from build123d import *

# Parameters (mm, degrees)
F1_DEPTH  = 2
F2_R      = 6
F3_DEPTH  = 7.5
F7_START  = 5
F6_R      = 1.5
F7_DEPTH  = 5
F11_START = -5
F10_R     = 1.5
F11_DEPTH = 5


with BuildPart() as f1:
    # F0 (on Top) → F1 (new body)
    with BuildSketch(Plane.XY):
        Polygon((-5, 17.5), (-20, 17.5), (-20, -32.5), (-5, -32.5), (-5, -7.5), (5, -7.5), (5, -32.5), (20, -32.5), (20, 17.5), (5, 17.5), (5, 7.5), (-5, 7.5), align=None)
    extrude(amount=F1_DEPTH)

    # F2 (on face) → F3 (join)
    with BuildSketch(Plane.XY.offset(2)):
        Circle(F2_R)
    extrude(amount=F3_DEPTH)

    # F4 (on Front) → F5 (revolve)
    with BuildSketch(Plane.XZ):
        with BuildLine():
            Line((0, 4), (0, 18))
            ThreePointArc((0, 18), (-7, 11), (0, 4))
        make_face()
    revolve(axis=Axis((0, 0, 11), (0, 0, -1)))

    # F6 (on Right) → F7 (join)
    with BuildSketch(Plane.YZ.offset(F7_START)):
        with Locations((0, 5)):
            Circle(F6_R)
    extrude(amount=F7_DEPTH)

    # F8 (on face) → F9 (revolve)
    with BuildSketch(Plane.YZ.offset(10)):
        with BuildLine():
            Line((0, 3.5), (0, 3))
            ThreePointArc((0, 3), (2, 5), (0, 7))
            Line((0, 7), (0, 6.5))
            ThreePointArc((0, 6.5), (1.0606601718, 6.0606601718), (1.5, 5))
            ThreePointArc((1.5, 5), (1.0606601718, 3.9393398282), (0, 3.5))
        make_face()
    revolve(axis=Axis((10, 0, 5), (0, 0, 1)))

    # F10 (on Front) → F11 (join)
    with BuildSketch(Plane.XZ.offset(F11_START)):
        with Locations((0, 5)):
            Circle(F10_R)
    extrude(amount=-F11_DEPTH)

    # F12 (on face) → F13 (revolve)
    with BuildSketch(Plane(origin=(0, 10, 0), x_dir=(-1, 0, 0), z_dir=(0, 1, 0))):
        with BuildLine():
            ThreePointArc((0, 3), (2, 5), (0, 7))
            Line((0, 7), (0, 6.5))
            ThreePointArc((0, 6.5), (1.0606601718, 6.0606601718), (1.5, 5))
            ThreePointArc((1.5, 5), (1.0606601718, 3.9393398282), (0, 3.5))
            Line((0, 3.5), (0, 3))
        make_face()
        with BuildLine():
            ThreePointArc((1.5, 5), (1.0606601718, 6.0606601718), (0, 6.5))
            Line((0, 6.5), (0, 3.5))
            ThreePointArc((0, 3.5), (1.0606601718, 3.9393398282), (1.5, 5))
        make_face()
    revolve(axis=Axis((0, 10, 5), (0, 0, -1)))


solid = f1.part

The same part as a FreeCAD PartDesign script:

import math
import FreeCAD as App
import Part
import Sketcher

doc = App.newDocument("Part")
body = doc.addObject("PartDesign::Body", "Body")

sketch1 = doc.addObject("Sketcher::SketchObject", "Sketch")
body.addObject(sketch1)
sketch1.AttachmentSupport = (doc.XY_Plane, [""])
sketch1.MapMode = "FlatFace"
sketch1.addGeometry(Part.LineSegment(App.Vector(-5, 18, 0), App.Vector(-20, 18, 0)), False)
sketch1.addGeometry(Part.LineSegment(App.Vector(-20, 18, 0), App.Vector(-20, -32, 0)), False)
sketch1.addGeometry(Part.LineSegment(App.Vector(-20, -32, 0), App.Vector(-5, -32, 0)), False)
sketch1.addGeometry(Part.LineSegment(App.Vector(-5, -32, 0), App.Vector(-5, -8, 0)), False)
sketch1.addGeometry(Part.LineSegment(App.Vector(-5, -8, 0), App.Vector(5, -8, 0)), False)
sketch1.addGeometry(Part.LineSegment(App.Vector(5, -8, 0), App.Vector(5, -32, 0)), False)
sketch1.addGeometry(Part.LineSegment(App.Vector(5, -32, 0), App.Vector(20, -32, 0)), False)
sketch1.addGeometry(Part.LineSegment(App.Vector(20, -32, 0), App.Vector(20, 18, 0)), False)
sketch1.addGeometry(Part.LineSegment(App.Vector(20, 18, 0), App.Vector(5, 18, 0)), False)
sketch1.addGeometry(Part.LineSegment(App.Vector(5, 18, 0), App.Vector(5, 8, 0)), False)
sketch1.addGeometry(Part.LineSegment(App.Vector(5, 8, 0), App.Vector(-5, 8, 0)), False)
sketch1.addGeometry(Part.LineSegment(App.Vector(-5, 8, 0), App.Vector(-5, 18, 0)), False)
sketch1.addConstraint(Sketcher.Constraint("Coincident", 0, 2, 1, 1))
sketch1.addConstraint(Sketcher.Constraint("Coincident", 1, 2, 2, 1))
sketch1.addConstraint(Sketcher.Constraint("Coincident", 2, 2, 3, 1))
sketch1.addConstraint(Sketcher.Constraint("Coincident", 3, 2, 4, 1))
sketch1.addConstraint(Sketcher.Constraint("Coincident", 4, 2, 5, 1))
sketch1.addConstraint(Sketcher.Constraint("Coincident", 5, 2, 6, 1))
sketch1.addConstraint(Sketcher.Constraint("Coincident", 6, 2, 7, 1))
sketch1.addConstraint(Sketcher.Constraint("Coincident", 7, 2, 8, 1))
sketch1.addConstraint(Sketcher.Constraint("Coincident", 8, 2, 9, 1))
sketch1.addConstraint(Sketcher.Constraint("Coincident", 9, 2, 10, 1))
sketch1.addConstraint(Sketcher.Constraint("Coincident", 10, 2, 11, 1))
sketch1.addConstraint(Sketcher.Constraint("Coincident", 11, 2, 0, 1))
sketch1.addConstraint(Sketcher.Constraint("Horizontal", 0))
sketch1.addConstraint(Sketcher.Constraint("Vertical", 1))
sketch1.addConstraint(Sketcher.Constraint("Horizontal", 2))
sketch1.addConstraint(Sketcher.Constraint("Vertical", 3))
sketch1.addConstraint(Sketcher.Constraint("Horizontal", 4))
sketch1.addConstraint(Sketcher.Constraint("Vertical", 5))
sketch1.addConstraint(Sketcher.Constraint("Horizontal", 6))
sketch1.addConstraint(Sketcher.Constraint("Vertical", 7))
sketch1.addConstraint(Sketcher.Constraint("Horizontal", 8))
sketch1.addConstraint(Sketcher.Constraint("Vertical", 9))
sketch1.addConstraint(Sketcher.Constraint("Horizontal", 10))
sketch1.addConstraint(Sketcher.Constraint("Vertical", 11))
sketch1.addConstraint(Sketcher.Constraint("Symmetric", 3, 2, 9, 2, -1, 1))
sketch1.addConstraint(Sketcher.Constraint("Symmetric", 2, 2, 5, 2, -2))
sketch1.addConstraint(Sketcher.Constraint("Symmetric", 0, 2, 7, 2, -2))
sketch1.addConstraint(Sketcher.Constraint("Vertical", 3, 2, 10, 2))
sketch1.addConstraint(Sketcher.Constraint("Equal", 10, 9))
sketch1.addConstraint(Sketcher.Constraint("DistanceX", 0, 2, 0, 1, 15.0))
sketch1.addConstraint(Sketcher.Constraint("DistanceX", 4, 1, 4, 2, 10.0))
sketch1.addConstraint(Sketcher.Constraint("DistanceY", 1, 2, 1, 1, 50.0))
sketch1.addConstraint(Sketcher.Constraint("DistanceY", 3, 1, 3, 2, 25.0))
pad1 = doc.addObject("PartDesign::Pad", "Pad")
body.addObject(pad1)
pad1.Profile = sketch1
pad1.Length = 2

sketch2 = doc.addObject("Sketcher::SketchObject", "Sketch001")
body.addObject(sketch2)
sketch2.AttachmentSupport = (doc.XY_Plane, [""])
sketch2.MapMode = "FlatFace"
sketch2.AttachmentOffset = App.Placement(App.Vector(0, 0, 2), App.Rotation())
sketch2.addGeometry(Part.Circle(App.Vector(0, 0, 0), App.Vector(0, 0, 1), 6), False)
sketch2.addConstraint(Sketcher.Constraint("Coincident", 0, 3, -1, 1))
sketch2.addConstraint(Sketcher.Constraint("Diameter", 0, 12.0))
pad2 = doc.addObject("PartDesign::Pad", "Pad001")
body.addObject(pad2)
pad2.Profile = sketch2
pad2.Length = 7.5

sketch3 = doc.addObject("Sketcher::SketchObject", "Sketch002")
body.addObject(sketch3)
sketch3.AttachmentSupport = (doc.XZ_Plane, [""])
sketch3.MapMode = "FlatFace"
sketch3.addGeometry(Part.LineSegment(App.Vector(0, 4, 0), App.Vector(0, 18, 0)), False)
sketch3.addGeometry(Part.ArcOfCircle(Part.Circle(App.Vector(0, 11, 0), App.Vector(0, 0, 1), 7), math.radians(90), math.radians(270)), False)
sketch3.addConstraint(Sketcher.Constraint("Coincident", 0, 1, 1, 2))
sketch3.addConstraint(Sketcher.Constraint("Coincident", 1, 1, 0, 2))
sketch3.addConstraint(Sketcher.Constraint("Vertical", 0))
sketch3.addConstraint(Sketcher.Constraint("PointOnObject", 1, 3, -2))
sketch3.addConstraint(Sketcher.Constraint("PointOnObject", 0, 1, -2))
sketch3.addConstraint(Sketcher.Constraint("Radius", 1, 7.0))
sketch3.addConstraint(Sketcher.Constraint("DistanceY", -1, 1, 1, 3, 11.0))
revolution = doc.addObject("PartDesign::Revolution", "Revolution")
body.addObject(revolution)
revolution.Profile = sketch3
revolution.ReferenceAxis = (sketch3, ["V_Axis"])
revolution.Angle = 360

sketch4 = doc.addObject("Sketcher::SketchObject", "Sketch003")
body.addObject(sketch4)
sketch4.AttachmentSupport = (doc.YZ_Plane, [""])
sketch4.MapMode = "FlatFace"
sketch4.AttachmentOffset = App.Placement(App.Vector(0, 0, 5), App.Rotation())
sketch4.addGeometry(Part.Circle(App.Vector(0, 5, 0), App.Vector(0, 0, 1), 1.5), False)
sketch4.addConstraint(Sketcher.Constraint("PointOnObject", 0, 3, -2))
sketch4.addConstraint(Sketcher.Constraint("Diameter", 0, 3.0))
sketch4.addConstraint(Sketcher.Constraint("DistanceY", -1, 1, 0, 3, 5.0))
pad3 = doc.addObject("PartDesign::Pad", "Pad002")
body.addObject(pad3)
pad3.Profile = sketch4
pad3.Length = 5

sketch5 = doc.addObject("Sketcher::SketchObject", "Sketch004")
body.addObject(sketch5)
sketch5.AttachmentSupport = (doc.YZ_Plane, [""])
sketch5.MapMode = "FlatFace"
sketch5.AttachmentOffset = App.Placement(App.Vector(0, 0, 10), App.Rotation())
sketch5.addGeometry(Part.LineSegment(App.Vector(0, 3.5, 0), App.Vector(0, 3, 0)), False)
sketch5.addGeometry(Part.ArcOfCircle(Part.Circle(App.Vector(0, 5, 0), App.Vector(0, 0, 1), 2), math.radians(-90), math.radians(90)), False)
sketch5.addGeometry(Part.LineSegment(App.Vector(0, 7, 0), App.Vector(0, 6.5, 0)), False)
sketch5.addGeometry(Part.ArcOfCircle(Part.Circle(App.Vector(0, 5, 0), App.Vector(0, 0, 1), 1.5), math.radians(0), math.radians(90)), False)
sketch5.addGeometry(Part.ArcOfCircle(Part.Circle(App.Vector(0, 5, 0), App.Vector(0, 0, 1), 1.5), math.radians(-90), math.radians(0)), False)
sketch5.addConstraint(Sketcher.Constraint("Coincident", 0, 2, 1, 1))
sketch5.addConstraint(Sketcher.Constraint("Coincident", 1, 2, 2, 1))
sketch5.addConstraint(Sketcher.Constraint("Coincident", 2, 2, 3, 2))
sketch5.addConstraint(Sketcher.Constraint("Tangent", 3, 1, 4, 2))
sketch5.addConstraint(Sketcher.Constraint("Coincident", 4, 1, 0, 1))
sketch5.addConstraint(Sketcher.Constraint("Vertical", 0))
sketch5.addConstraint(Sketcher.Constraint("Vertical", 2))
sketch5.addConstraint(Sketcher.Constraint("Coincident", 3, 3, 1, 3))
sketch5.addConstraint(Sketcher.Constraint("Equal", 3, 4))
sketch5.addConstraint(Sketcher.Constraint("PointOnObject", 1, 3, -2))
sketch5.addConstraint(Sketcher.Constraint("PointOnObject", 0, 2, -2))
sketch5.addConstraint(Sketcher.Constraint("PointOnObject", 1, 2, -2))
sketch5.addConstraint(Sketcher.Constraint("Horizontal", 4, 3, 3, 1))
sketch5.addConstraint(Sketcher.Constraint("Radius", 1, 2.0))
sketch5.addConstraint(Sketcher.Constraint("Radius", 3, 1.5))
sketch5.addConstraint(Sketcher.Constraint("DistanceY", -1, 1, 1, 3, 5.0))
revolution2 = doc.addObject("PartDesign::Revolution", "Revolution001")
body.addObject(revolution2)
revolution2.Profile = sketch5
revolution2.ReferenceAxis = (sketch5, ["V_Axis"])
revolution2.Angle = 360

sketch6 = doc.addObject("Sketcher::SketchObject", "Sketch005")
body.addObject(sketch6)
sketch6.AttachmentSupport = (doc.XZ_Plane, [""])
sketch6.MapMode = "FlatFace"
sketch6.AttachmentOffset = App.Placement(App.Vector(0, 0, -5), App.Rotation())
sketch6.addGeometry(Part.Circle(App.Vector(0, 5, 0), App.Vector(0, 0, 1), 1.5), False)
sketch6.addConstraint(Sketcher.Constraint("PointOnObject", 0, 3, -2))
sketch6.addConstraint(Sketcher.Constraint("Diameter", 0, 3.0))
sketch6.addConstraint(Sketcher.Constraint("DistanceY", -1, 1, 0, 3, 5.0))
pad4 = doc.addObject("PartDesign::Pad", "Pad003")
body.addObject(pad4)
pad4.Profile = sketch6
pad4.Length = 5
pad4.Reversed = True

sketch7 = doc.addObject("Sketcher::SketchObject", "Sketch006")
body.addObject(sketch7)
sketch7.AttachmentSupport = (doc.XZ_Plane, [""])
sketch7.MapMode = "FlatFace"
sketch7.AttachmentOffset = App.Placement(App.Vector(0, 0, -10), App.Rotation())
sketch7.addGeometry(Part.ArcOfCircle(Part.Circle(App.Vector(0, 5, 0), App.Vector(0, 0, 1), 2), math.radians(90), math.radians(270)), False)
sketch7.addGeometry(Part.LineSegment(App.Vector(0, 7, 0), App.Vector(0, 3, 0)), False)
sketch7.addConstraint(Sketcher.Constraint("Coincident", 0, 1, 1, 1))
sketch7.addConstraint(Sketcher.Constraint("Coincident", 1, 2, 0, 2))
sketch7.addConstraint(Sketcher.Constraint("Vertical", 1))
sketch7.addConstraint(Sketcher.Constraint("PointOnObject", 0, 3, -2))
sketch7.addConstraint(Sketcher.Constraint("PointOnObject", 0, 1, -2))
sketch7.addConstraint(Sketcher.Constraint("Radius", 0, 2.0))
sketch7.addConstraint(Sketcher.Constraint("DistanceY", -1, 1, 0, 3, 5.0))
revolution3 = doc.addObject("PartDesign::Revolution", "Revolution002")
body.addObject(revolution3)
revolution3.Profile = sketch7
revolution3.ReferenceAxis = (sketch7, ["V_Axis"])
revolution3.Angle = 360

doc.recompute()
